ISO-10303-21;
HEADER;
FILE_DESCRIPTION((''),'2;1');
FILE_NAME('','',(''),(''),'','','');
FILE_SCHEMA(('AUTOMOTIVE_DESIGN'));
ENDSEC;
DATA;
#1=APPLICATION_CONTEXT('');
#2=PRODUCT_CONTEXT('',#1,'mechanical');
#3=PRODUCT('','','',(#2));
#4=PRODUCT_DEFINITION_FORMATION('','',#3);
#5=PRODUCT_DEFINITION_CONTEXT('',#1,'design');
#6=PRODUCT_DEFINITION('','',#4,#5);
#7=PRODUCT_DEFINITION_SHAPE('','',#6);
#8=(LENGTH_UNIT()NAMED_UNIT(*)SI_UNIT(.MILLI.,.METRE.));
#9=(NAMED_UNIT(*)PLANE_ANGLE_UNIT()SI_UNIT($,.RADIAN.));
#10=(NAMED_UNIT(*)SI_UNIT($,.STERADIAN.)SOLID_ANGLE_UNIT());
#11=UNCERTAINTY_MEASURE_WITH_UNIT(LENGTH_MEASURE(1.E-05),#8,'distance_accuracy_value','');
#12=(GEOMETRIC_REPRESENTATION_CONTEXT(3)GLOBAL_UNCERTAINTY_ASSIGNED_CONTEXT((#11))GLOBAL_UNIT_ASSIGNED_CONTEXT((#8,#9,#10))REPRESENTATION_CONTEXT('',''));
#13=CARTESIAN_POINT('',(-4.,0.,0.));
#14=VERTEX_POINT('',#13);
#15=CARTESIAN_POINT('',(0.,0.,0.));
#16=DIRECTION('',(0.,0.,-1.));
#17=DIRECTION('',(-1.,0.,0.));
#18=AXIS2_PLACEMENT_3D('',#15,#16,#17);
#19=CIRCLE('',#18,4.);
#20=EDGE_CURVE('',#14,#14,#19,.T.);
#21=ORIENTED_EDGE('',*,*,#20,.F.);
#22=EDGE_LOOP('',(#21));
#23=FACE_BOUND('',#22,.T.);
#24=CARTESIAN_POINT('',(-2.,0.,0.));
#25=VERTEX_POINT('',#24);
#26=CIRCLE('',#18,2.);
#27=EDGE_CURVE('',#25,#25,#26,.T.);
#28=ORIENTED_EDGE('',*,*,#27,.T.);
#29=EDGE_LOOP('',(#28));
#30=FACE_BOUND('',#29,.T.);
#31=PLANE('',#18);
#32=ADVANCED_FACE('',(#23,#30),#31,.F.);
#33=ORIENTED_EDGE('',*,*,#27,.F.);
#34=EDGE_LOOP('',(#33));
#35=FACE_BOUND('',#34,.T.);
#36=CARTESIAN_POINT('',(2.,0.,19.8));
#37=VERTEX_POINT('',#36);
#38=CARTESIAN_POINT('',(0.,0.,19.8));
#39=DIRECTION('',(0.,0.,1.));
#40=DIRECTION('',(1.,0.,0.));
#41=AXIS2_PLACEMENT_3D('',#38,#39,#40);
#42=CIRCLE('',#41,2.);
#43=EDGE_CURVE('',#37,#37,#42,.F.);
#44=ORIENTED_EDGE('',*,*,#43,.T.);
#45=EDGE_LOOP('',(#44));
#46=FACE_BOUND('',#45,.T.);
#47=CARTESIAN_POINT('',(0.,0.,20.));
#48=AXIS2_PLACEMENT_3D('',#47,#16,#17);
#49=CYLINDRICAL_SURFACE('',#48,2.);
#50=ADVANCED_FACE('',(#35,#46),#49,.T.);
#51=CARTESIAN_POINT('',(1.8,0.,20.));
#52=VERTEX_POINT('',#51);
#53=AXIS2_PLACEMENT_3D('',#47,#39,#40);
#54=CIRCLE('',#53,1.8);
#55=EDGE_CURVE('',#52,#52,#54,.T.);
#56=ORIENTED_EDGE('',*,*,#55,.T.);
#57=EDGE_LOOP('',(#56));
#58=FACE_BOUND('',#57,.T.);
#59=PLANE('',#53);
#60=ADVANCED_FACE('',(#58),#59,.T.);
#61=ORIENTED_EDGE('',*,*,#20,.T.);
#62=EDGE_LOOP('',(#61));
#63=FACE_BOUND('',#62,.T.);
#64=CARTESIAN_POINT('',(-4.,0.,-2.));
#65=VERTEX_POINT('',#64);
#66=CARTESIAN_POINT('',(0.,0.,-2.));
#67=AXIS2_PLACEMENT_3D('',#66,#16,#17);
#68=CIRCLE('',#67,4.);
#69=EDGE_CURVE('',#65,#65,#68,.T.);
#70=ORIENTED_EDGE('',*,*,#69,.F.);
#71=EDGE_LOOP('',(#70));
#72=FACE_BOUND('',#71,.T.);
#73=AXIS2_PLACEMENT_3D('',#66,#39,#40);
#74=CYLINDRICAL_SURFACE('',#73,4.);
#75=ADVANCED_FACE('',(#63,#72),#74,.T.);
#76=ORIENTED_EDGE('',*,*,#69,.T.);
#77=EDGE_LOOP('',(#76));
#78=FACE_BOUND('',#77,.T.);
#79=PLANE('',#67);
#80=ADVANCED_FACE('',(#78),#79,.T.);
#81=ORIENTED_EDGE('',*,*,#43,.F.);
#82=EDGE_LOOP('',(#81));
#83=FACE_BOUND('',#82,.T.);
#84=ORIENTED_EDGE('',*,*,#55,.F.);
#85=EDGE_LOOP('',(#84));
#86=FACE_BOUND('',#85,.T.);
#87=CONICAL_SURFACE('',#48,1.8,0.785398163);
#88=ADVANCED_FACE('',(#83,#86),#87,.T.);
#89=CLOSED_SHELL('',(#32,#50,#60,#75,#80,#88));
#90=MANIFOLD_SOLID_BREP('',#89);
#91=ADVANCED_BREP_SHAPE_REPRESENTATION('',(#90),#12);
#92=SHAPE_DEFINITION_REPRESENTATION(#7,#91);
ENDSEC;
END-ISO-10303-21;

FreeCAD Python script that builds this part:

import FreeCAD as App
import Part
import Sketcher
Q = App.Units.Quantity


def edges_at(feature, points):
    """Names of the edges that pass closest to the given points."""
    edges = feature.Shape.Edges
    near = lambda p: min(range(len(edges)), key=lambda i: edges[i].distToShape(Part.Vertex(*p))[0])
    return sorted({f"Edge{near(p) + 1}" for p in points})

doc = App.newDocument("Part")
params = doc.addObject("Spreadsheet::Sheet", "Params")
for row, (alias, value) in enumerate([
    ("sketch1_diameter", "4 mm"),
    ("pad1_length", "20 mm"),
    ("sketch2_diameter", "8 mm"),
    ("pad2_length", "2 mm"),
    ("chamfer_size", "0.2 mm"),
], start=1):
    params.set(f"A{row}", alias)
    params.set(f"B{row}", "=" + value)
    params.setAlias(f"B{row}", alias)

body = doc.addObject("PartDesign::Body", "Body")

# Sketch on XY plane
sketch1 = body.newObject("Sketcher::SketchObject", "Sketch")
sketch1.AttachmentSupport = (doc.getObject("XY_Plane"), [""])
sketch1.MapMode = "FlatFace"
sketch1.addGeometry(Part.Circle(App.Vector(0, 0, 0), App.Vector(0, 0, 1), 2), False)
sketch1.addConstraint(Sketcher.Constraint("Coincident", 0, 3, -1, 1))
sketch1.addConstraint(Sketcher.Constraint("Diameter", 0, Q("4 mm")))
sketch1.setExpression("Constraints[1]", "Params.sketch1_diameter")
pad1 = body.newObject("PartDesign::Pad", "Pad")
pad1.Profile = sketch1
pad1.setExpression("Length", "Params.pad1_length")

# Sketch on XY plane
sketch2 = body.newObject("Sketcher::SketchObject", "Sketch001")
sketch2.AttachmentSupport = (doc.getObject("XY_Plane"), [""])
sketch2.MapMode = "FlatFace"
sketch2.addGeometry(Part.Circle(App.Vector(0, 0, 0), App.Vector(0, 0, 1), 4), False)
sketch2.addConstraint(Sketcher.Constraint("Coincident", 0, 3, -1, 1))
sketch2.addConstraint(Sketcher.Constraint("Diameter", 0, Q("8 mm")))
sketch2.setExpression("Constraints[1]", "Params.sketch2_diameter")
pad2 = body.newObject("PartDesign::Pad", "Pad001")
pad2.Profile = sketch2
pad2.setExpression("Length", "Params.pad2_length")
pad2.Reversed = True
doc.recompute()

chamfer = body.newObject("PartDesign::Chamfer", "Chamfer")
chamfer.Base = (pad2, edges_at(pad2, [(-2, 0, 20)]))
chamfer.setExpression("Size", "Params.chamfer_size")

doc.recompute()
